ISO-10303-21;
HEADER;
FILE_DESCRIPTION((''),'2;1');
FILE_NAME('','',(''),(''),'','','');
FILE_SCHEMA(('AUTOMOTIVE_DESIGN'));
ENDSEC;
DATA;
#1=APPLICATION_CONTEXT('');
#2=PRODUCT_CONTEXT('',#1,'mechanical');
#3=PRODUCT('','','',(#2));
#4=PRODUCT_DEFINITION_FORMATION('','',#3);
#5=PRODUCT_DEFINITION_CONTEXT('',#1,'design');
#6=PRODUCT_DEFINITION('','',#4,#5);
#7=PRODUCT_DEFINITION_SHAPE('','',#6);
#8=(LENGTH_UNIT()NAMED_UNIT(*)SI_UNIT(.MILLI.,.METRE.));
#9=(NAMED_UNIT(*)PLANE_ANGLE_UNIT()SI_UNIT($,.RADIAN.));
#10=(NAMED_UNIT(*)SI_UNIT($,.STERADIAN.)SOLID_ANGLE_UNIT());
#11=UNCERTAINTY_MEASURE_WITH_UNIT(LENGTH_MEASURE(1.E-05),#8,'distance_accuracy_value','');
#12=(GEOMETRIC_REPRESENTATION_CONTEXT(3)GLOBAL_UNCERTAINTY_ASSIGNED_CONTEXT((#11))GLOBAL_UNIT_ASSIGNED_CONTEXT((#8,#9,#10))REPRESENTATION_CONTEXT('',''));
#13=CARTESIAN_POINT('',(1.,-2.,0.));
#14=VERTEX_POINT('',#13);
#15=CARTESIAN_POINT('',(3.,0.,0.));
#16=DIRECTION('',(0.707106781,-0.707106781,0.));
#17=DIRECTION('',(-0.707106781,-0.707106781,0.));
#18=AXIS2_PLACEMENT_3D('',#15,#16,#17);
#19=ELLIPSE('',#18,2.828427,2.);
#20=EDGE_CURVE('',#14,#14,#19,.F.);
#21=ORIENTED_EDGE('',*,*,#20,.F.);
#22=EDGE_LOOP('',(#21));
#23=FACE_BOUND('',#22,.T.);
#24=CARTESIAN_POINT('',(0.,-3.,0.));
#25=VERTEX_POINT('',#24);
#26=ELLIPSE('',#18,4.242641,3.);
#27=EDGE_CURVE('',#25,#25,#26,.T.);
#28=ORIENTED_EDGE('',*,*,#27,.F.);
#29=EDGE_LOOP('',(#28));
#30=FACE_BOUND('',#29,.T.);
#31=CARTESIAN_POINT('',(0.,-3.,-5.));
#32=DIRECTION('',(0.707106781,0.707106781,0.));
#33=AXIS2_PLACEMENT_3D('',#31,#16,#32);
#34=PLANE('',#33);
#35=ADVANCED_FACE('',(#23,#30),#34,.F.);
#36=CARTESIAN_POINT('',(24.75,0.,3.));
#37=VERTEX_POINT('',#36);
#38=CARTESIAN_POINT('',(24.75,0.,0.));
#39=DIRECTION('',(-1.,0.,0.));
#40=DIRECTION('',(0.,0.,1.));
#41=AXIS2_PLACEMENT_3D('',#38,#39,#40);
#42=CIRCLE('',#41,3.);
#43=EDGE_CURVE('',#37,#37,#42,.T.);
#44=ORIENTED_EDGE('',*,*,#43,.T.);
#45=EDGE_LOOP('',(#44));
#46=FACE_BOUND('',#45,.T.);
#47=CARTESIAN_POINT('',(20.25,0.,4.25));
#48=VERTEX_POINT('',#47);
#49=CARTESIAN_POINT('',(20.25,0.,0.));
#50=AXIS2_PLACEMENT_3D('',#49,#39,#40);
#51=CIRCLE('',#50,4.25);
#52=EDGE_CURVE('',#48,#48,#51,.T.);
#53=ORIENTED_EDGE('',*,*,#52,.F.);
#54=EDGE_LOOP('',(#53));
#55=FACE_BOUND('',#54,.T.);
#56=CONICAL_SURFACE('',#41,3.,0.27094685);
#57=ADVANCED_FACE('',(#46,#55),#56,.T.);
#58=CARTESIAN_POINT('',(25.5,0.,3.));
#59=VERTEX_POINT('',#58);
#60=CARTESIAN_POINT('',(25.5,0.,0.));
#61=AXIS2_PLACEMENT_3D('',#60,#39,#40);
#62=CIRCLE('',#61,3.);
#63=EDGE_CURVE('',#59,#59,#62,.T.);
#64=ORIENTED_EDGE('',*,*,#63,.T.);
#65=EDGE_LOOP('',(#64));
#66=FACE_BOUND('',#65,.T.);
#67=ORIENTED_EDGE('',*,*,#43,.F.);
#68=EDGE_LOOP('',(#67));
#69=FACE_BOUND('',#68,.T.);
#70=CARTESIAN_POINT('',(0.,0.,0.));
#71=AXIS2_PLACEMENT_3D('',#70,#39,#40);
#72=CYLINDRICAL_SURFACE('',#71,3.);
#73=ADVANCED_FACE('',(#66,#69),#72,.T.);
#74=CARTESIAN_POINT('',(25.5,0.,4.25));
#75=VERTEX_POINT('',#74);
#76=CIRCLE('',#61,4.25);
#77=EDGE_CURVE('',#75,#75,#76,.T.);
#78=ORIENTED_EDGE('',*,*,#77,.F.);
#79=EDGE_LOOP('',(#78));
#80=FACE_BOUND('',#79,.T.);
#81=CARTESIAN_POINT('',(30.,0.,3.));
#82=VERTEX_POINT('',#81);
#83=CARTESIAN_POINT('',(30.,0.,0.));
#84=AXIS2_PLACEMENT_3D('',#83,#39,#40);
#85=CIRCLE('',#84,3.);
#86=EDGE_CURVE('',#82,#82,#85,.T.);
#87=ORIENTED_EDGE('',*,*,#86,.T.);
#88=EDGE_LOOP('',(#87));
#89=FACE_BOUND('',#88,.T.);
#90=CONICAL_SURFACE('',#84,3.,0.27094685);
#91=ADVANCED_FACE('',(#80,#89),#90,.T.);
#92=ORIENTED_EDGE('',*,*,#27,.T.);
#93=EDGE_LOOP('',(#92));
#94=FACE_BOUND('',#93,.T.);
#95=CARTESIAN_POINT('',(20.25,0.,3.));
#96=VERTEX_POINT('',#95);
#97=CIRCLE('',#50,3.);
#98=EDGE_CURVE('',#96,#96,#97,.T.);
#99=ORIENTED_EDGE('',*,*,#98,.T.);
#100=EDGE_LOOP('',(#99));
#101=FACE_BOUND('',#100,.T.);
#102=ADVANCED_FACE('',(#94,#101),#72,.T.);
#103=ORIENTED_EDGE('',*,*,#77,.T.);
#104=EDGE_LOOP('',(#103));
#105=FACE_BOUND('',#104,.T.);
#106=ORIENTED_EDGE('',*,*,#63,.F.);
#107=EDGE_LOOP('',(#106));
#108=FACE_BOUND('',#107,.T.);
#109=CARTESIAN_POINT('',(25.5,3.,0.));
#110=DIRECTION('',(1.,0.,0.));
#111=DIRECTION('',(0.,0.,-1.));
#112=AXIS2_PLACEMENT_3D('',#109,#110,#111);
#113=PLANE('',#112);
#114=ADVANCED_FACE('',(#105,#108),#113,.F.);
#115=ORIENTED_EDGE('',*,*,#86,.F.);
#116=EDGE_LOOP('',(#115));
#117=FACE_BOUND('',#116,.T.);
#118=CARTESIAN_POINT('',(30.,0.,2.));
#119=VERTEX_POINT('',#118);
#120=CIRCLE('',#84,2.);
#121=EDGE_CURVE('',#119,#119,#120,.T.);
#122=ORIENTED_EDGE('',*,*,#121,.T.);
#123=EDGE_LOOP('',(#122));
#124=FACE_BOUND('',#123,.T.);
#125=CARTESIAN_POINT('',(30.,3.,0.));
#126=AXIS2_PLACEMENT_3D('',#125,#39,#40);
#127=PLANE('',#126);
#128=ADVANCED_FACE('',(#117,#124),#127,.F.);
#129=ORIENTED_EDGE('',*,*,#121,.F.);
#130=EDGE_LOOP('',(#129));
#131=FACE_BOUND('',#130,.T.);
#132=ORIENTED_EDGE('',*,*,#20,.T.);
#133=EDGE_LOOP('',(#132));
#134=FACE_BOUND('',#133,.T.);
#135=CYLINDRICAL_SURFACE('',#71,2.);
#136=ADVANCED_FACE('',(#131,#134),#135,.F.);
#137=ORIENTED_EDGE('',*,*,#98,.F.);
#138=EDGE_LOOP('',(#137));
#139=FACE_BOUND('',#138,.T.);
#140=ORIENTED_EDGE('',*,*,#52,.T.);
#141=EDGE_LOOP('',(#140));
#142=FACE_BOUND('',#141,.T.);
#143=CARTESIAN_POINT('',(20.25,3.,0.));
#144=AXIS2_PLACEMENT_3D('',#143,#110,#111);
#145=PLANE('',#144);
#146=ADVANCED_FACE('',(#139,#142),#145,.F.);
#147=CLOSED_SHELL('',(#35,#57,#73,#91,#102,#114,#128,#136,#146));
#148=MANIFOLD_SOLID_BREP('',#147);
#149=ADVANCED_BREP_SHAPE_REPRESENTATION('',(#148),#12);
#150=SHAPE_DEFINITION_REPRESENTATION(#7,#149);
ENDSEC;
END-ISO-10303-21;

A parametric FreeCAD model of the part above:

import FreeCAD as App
import Part
import Sketcher
Q = App.Units.Quantity

doc = App.newDocument("Part")
body = doc.addObject("PartDesign::Body", "Body")

# Sketch on XY plane
sketch1 = body.newObject("Sketcher::SketchObject", "Sketch")
sketch1.AttachmentSupport = (doc.getObject("XY_Plane"), [""])
sketch1.MapMode = "FlatFace"
sketch1.addGeometry([
    Part.LineSegment(App.Vector(0, 3, 0), App.Vector(0, 2, 0)),  # 0
    Part.LineSegment(App.Vector(0, 2, 0), App.Vector(30, 2, 0)),  # 1
    Part.LineSegment(App.Vector(30, 2, 0), App.Vector(30, 3, 0)),  # 2
    Part.LineSegment(App.Vector(30, 3, 0), App.Vector(25.5, 4.25, 0)),  # 3
    Part.LineSegment(App.Vector(25.5, 4.25, 0), App.Vector(25.5, 3, 0)),  # 4
    Part.LineSegment(App.Vector(25.5, 3, 0), App.Vector(24.75, 3, 0)),  # 5
    Part.LineSegment(App.Vector(24.75, 3, 0), App.Vector(20.25, 4.25, 0)),  # 6
    Part.LineSegment(App.Vector(20.25, 4.25, 0), App.Vector(20.25, 3, 0)),  # 7
    Part.LineSegment(App.Vector(20.25, 3, 0), App.Vector(0, 3, 0)),  # 8
], False)
sketch1.addConstraint([
    Sketcher.Constraint("Coincident", 0, 2, 1, 1),
    Sketcher.Constraint("Coincident", 1, 2, 2, 1),
    Sketcher.Constraint("Coincident", 2, 2, 3, 1),
    Sketcher.Constraint("Coincident", 3, 2, 4, 1),
    Sketcher.Constraint("Coincident", 4, 2, 5, 1),
    Sketcher.Constraint("Coincident", 5, 2, 6, 1),
    Sketcher.Constraint("Coincident", 6, 2, 7, 1),
    Sketcher.Constraint("Coincident", 7, 2, 8, 1),
    Sketcher.Constraint("Coincident", 8, 2, 0, 1),
    Sketcher.Constraint("Vertical", 0),
    Sketcher.Constraint("Horizontal", 1),
    Sketcher.Constraint("Vertical", 2),
    Sketcher.Constraint("Vertical", 4),
    Sketcher.Constraint("Horizontal", 5),
    Sketcher.Constraint("Vertical", 7),
    Sketcher.Constraint("Horizontal", 8),
    Sketcher.Constraint("PointOnObject", 0, 2, -2),
    Sketcher.Constraint("Parallel", 3, 6),
    Sketcher.Constraint("Horizontal", 2, 2, 4, 2),
    Sketcher.Constraint("Horizontal", 3, 2, 6, 2),
    Sketcher.Constraint("Horizontal", 5, 2, 7, 2),
    Sketcher.Constraint("DistanceX", 1, 1, 1, 2, Q("30 mm")),
    Sketcher.Constraint("DistanceY", 0, 2, 0, 1, Q("1 mm")),
    Sketcher.Constraint("DistanceY", -1, 1, 0, 2, Q("2 mm")),
    Sketcher.Constraint("DistanceX", 5, 2, 5, 1, Q("0.75 mm")),
    Sketcher.Constraint("DistanceX", 8, 2, 8, 1, Q("20.25 mm")),
    Sketcher.Constraint("DistanceY", 4, 2, 4, 1, Q("1.25 mm")),
])
revolution = body.newObject("PartDesign::Revolution", "Revolution")
revolution.Profile = sketch1
revolution.ReferenceAxis = (sketch1, ["H_Axis"])
revolution.Angle = 360

# Sketch on XY plane
sketch2 = body.newObject("Sketcher::SketchObject", "Sketch001")
sketch2.AttachmentSupport = (doc.getObject("XY_Plane"), [""])
sketch2.MapMode = "FlatFace"
sketch2.addGeometry([
    Part.LineSegment(App.Vector(0, -3, 0), App.Vector(6, 3, 0)),
    Part.LineSegment(App.Vector(6, 3, 0), App.Vector(0, 3, 0)),
    Part.LineSegment(App.Vector(0, 3, 0), App.Vector(0, -3, 0)),
], False)
sketch2.addConstraint([
    Sketcher.Constraint("Coincident", 0, 2, 1, 1),
    Sketcher.Constraint("Coincident", 1, 2, 2, 1),
    Sketcher.Constraint("Coincident", 2, 2, 0, 1),
    Sketcher.Constraint("Horizontal", 1),
    Sketcher.Constraint("Vertical", 2),
    Sketcher.Constraint("Symmetric", 1, 2, 2, 2, -1, 1),
    Sketcher.Constraint("Equal", 1, 2),
    Sketcher.Constraint("DistanceX", 1, 2, 1, 1, Q("6 mm")),
])
pocket1 = body.newObject("PartDesign::Pocket", "Pocket")
pocket1.Profile = sketch2
pocket1.Length = 10
pocket1.Midplane = True

doc.recompute()
